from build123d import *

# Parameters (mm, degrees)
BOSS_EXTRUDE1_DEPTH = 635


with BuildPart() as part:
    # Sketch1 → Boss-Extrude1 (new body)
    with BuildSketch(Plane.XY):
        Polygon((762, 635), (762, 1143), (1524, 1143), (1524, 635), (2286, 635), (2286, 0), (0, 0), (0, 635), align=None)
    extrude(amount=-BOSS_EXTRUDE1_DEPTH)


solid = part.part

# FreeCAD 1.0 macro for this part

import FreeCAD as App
import Part
import Sketcher
Q = App.Units.Quantity


def add_polygon(sketch, points):
    """Adds a closed chain of lines whose ends are joined by coincident constraints."""
    first, n = sketch.GeometryCount, len(points)
    for a, b in zip(points, points[1:] + points[:1]):
        sketch.addGeometry(Part.LineSegment(App.Vector(*a, 0), App.Vector(*b, 0)), False)
    for i in range(n):
        sketch.addConstraint(Sketcher.Constraint("Coincident", first + i, 2, first + (i + 1) % n, 1))

doc = App.newDocument("Part")
body = doc.addObject("PartDesign::Body", "Body")

# Sketch on XY plane
sketch1 = doc.addObject("Sketcher::SketchObject", "Sketch")
body.addObject(sketch1)
sketch1.AttachmentSupport = (doc.XY_Plane, [""])
sketch1.MapMode = "FlatFace"
add_polygon(sketch1, [(762, 1143), (762, 635), (0, 635), (0, 0), (2286, 0), (2286, 635), (1524, 635), (1524, 1143)])  # lines 0-7
sketch1.addConstraint([
    Sketcher.Constraint("Vertical", 0),
    Sketcher.Constraint("Horizontal", 1),
    Sketcher.Constraint("Vertical", 2),
    Sketcher.Constraint("Horizontal", 3),
    Sketcher.Constraint("Vertical", 4),
    Sketcher.Constraint("Horizontal", 5),
    Sketcher.Constraint("Vertical", 6),
    Sketcher.Constraint("Horizontal", 7),
    Sketcher.Constraint("Coincident", 2, 2, -1, 1),
    Sketcher.Constraint("Horizontal", 1, 2, 4, 2),
    Sketcher.Constraint("Equal", 1, 5),
    Sketcher.Constraint("Equal", 5, 7),
    Sketcher.Constraint("DistanceX", 1, 2, 1, 1, Q("30 in")),
    Sketcher.Constraint("DistanceY", 0, 2, 0, 1, Q("20 in")),
    Sketcher.Constraint("DistanceY", 2, 2, 2, 1, Q("25 in")),
])
pad1 = doc.addObject("PartDesign::Pad", "Pad")
body.addObject(pad1)
pad1.Profile = sketch1
pad1.Length = Q("25 in")
pad1.Reversed = True

doc.recompute()
